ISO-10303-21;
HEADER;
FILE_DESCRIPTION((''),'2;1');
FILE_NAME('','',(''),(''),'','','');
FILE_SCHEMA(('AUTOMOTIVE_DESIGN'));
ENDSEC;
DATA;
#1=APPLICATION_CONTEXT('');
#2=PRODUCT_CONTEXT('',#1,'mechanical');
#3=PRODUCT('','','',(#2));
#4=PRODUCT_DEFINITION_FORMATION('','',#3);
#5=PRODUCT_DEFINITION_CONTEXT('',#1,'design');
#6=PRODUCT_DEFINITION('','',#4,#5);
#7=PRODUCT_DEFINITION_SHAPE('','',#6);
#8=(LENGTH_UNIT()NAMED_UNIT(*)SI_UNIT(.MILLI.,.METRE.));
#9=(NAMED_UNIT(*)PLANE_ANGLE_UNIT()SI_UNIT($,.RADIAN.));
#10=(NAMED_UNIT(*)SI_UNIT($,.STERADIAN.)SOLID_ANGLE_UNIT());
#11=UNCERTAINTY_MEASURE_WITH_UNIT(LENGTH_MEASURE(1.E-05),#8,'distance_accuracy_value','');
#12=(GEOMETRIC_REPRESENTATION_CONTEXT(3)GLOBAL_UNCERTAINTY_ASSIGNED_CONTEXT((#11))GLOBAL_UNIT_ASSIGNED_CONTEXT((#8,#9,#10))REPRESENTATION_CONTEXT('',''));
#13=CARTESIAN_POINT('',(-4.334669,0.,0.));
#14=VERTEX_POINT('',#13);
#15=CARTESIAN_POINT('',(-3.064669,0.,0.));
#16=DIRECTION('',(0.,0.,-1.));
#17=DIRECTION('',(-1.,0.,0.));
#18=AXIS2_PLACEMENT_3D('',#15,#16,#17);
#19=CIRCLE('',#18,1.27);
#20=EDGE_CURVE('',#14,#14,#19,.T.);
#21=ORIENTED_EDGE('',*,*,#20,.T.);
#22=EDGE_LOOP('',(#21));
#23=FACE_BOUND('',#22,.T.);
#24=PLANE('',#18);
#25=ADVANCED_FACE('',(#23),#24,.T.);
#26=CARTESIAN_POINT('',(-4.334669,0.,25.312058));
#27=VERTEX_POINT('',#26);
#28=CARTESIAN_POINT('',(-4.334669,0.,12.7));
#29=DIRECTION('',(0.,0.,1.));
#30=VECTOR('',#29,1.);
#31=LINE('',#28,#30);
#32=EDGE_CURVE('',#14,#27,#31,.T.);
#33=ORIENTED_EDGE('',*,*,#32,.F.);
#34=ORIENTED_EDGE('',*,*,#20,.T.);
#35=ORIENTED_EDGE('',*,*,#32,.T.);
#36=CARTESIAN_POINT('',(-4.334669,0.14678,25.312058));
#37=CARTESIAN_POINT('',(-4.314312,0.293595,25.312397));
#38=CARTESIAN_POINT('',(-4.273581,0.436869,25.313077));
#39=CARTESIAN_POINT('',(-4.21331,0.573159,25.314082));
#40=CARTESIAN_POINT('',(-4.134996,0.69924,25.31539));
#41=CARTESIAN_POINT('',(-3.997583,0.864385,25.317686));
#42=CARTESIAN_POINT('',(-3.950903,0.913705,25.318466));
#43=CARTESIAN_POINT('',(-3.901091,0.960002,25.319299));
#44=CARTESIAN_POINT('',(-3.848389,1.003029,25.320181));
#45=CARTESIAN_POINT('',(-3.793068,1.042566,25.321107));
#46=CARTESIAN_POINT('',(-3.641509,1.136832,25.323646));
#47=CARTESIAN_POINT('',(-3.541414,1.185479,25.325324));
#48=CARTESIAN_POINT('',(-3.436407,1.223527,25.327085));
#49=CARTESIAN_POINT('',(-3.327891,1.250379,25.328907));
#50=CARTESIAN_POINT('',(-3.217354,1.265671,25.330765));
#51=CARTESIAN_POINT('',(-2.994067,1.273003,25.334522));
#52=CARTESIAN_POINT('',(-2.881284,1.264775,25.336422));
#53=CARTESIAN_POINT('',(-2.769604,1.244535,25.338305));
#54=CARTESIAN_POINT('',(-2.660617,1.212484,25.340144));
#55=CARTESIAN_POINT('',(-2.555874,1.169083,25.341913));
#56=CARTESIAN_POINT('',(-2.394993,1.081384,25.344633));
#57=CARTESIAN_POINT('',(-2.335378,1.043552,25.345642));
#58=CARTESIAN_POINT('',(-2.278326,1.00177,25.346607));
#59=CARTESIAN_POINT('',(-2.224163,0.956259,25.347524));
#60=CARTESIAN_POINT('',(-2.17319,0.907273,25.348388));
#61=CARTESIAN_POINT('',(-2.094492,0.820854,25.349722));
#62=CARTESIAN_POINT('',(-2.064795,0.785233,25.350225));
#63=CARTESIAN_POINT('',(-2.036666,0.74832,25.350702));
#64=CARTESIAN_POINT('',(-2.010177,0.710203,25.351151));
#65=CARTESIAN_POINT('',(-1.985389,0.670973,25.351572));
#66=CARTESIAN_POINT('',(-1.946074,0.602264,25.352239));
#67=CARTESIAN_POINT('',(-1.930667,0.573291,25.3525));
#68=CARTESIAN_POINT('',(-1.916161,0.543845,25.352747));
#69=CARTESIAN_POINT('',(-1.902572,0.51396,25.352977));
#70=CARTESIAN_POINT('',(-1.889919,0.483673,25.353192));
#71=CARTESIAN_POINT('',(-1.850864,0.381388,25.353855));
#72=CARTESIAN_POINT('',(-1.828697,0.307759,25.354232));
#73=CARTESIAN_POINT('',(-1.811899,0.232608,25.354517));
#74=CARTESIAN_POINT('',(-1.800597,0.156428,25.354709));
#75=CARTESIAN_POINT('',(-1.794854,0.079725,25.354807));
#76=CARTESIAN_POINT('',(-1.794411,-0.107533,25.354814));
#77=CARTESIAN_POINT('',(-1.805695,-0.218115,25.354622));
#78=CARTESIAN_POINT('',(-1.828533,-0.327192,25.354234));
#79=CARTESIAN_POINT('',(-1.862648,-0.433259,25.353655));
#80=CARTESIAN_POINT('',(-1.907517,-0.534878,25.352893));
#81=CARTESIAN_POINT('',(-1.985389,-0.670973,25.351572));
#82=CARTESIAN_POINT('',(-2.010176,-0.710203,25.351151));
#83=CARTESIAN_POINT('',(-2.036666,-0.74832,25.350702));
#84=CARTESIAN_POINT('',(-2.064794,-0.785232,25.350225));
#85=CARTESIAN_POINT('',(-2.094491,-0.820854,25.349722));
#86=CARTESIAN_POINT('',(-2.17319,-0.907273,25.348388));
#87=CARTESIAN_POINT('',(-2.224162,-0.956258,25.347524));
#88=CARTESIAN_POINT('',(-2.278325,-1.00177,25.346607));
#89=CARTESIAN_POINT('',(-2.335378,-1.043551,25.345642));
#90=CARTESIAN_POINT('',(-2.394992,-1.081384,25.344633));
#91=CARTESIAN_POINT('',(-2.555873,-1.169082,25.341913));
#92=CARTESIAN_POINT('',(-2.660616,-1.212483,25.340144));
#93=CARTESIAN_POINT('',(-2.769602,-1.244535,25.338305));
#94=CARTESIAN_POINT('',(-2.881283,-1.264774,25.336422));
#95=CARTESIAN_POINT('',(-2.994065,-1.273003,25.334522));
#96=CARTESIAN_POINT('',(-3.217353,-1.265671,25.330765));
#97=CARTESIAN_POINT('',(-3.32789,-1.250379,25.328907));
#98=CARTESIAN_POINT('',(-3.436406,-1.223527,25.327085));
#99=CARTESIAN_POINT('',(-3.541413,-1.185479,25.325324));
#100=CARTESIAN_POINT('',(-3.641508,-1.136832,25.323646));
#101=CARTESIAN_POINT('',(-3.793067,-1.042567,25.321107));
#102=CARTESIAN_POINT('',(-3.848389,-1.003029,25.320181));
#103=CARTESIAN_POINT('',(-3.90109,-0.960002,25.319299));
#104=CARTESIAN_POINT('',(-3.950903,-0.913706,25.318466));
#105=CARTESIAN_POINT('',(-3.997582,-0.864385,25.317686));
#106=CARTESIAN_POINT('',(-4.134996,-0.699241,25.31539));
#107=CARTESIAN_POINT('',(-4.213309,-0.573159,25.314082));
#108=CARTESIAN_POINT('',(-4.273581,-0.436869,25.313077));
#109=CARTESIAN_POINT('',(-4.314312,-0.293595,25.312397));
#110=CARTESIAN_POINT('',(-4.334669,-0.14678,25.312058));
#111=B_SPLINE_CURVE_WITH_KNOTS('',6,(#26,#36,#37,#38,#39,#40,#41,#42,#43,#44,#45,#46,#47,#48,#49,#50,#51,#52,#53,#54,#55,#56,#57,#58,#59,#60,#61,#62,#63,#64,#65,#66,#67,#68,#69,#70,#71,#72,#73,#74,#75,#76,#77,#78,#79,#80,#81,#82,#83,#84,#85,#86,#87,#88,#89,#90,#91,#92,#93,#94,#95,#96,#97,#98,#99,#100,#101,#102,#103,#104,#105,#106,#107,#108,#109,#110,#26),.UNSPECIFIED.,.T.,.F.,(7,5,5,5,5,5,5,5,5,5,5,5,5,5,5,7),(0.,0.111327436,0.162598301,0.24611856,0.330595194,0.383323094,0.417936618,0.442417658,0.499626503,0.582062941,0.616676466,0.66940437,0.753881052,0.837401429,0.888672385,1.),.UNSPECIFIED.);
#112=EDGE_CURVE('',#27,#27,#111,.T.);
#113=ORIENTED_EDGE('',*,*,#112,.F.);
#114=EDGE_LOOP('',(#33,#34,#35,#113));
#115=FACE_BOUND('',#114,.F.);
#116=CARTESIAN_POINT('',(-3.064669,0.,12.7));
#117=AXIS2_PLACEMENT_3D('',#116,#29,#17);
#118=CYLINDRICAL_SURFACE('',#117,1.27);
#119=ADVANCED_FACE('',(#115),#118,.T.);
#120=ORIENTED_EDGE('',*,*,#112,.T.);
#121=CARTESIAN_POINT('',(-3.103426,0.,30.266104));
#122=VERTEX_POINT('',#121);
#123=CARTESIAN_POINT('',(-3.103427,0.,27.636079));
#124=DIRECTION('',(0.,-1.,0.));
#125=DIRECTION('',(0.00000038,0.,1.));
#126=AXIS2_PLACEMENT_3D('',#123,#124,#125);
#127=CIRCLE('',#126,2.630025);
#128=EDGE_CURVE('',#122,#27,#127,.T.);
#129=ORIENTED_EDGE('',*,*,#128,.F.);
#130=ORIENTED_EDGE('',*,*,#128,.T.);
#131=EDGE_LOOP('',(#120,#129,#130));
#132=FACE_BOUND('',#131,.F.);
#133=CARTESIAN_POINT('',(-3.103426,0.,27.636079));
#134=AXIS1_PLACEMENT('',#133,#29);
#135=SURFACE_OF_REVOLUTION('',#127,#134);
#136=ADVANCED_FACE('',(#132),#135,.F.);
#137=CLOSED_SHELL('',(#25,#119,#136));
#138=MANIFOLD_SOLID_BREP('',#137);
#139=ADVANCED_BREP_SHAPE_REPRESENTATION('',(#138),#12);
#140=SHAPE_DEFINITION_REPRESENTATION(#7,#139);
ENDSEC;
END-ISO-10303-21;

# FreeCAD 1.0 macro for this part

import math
import FreeCAD as App
import Part
import Sketcher
from FreeCAD import Vector
Q = App.Units.Quantity


def add_polygon(sketch, points):
    """Adds a closed chain of lines whose ends are joined by coincident constraints."""
    first, n = sketch.GeometryCount, len(points)
    for a, b in zip(points, points[1:] + points[:1]):
        sketch.addGeometry(Part.LineSegment(App.Vector(*a, 0), App.Vector(*b, 0)), False)
    for i in range(n):
        sketch.addConstraint(Sketcher.Constraint("Coincident", first + i, 2, first + (i + 1) % n, 1))

doc = App.newDocument("Part")
body = doc.addObject("PartDesign::Body", "Body")

# Sketch on XZ plane
sketch1 = body.newObject("Sketcher::SketchObject", "Sketch")
sketch1.AttachmentSupport = (doc.getObject("XZ_Plane"), [""])
sketch1.MapMode = "FlatFace"
add_polygon(sketch1, [(-4.3, 25.4), (-4.3, 0), (-3.1, 0), (-3.1, 25.4)])  # lines 0-3
sketch1.addGeometry(Part.LineSegment(Vector(-3.1, 25.4, 0), Vector(-3.1, 0, 0)), True)  # axis
sketch1.addConstraint([
    Sketcher.Constraint("Vertical", 0),
    Sketcher.Constraint("Horizontal", 1),
    Sketcher.Constraint("Vertical", 2),
    Sketcher.Constraint("Horizontal", 3),
    Sketcher.Constraint("Vertical", 4),
    Sketcher.Constraint("Coincident", 4, 1, 2, 2),
    Sketcher.Constraint("PointOnObject", 0, 2, -1),
    Sketcher.Constraint("PointOnObject", 4, 2, -1),
    Sketcher.Constraint("DistanceY", 0, 2, 0, 1, Q("1 in")),
    Sketcher.Constraint("DistanceX", 1, 1, 1, 2, Q("0.05 in")),
    Sketcher.Constraint("DistanceX", 0, 2, -1, 1, 4.334669),
])
revolution = body.newObject("PartDesign::Revolution", "Revolution")
revolution.Profile = sketch1
revolution.ReferenceAxis = (sketch1, ["Axis0"])
revolution.Angle = 360

# Sketch on XZ plane
sketch2 = body.newObject("Sketcher::SketchObject", "Sketch001")
sketch2.AttachmentSupport = (doc.getObject("XZ_Plane"), [""])
sketch2.MapMode = "FlatFace"
sketch2.addGeometry([
    Part.LineSegment(Vector(-3.1, 25, 0), Vector(-3.1, 30.3, 0)),
    Part.ArcOfCircle(Part.Circle(Vector(-3.1, 27.6, 0), Vector(0, 0, 1), 2.6), math.radians(90), math.radians(270)),
], False)
sketch2.addGeometry(Part.LineSegment(Vector(-3.1, 25, 0), Vector(-3.1, 30.3, 0)), True)  # axis
sketch2.addConstraint([
    Sketcher.Constraint("Coincident", 0, 1, 1, 2),
    Sketcher.Constraint("Coincident", 1, 1, 0, 2),
    Sketcher.Constraint("Vertical", 0),
    Sketcher.Constraint("Vertical", 2),
    Sketcher.Constraint("Coincident", 2, 1, 0, 1),
    Sketcher.Constraint("Vertical", 1, 3, 0, 1),
    Sketcher.Constraint("Equal", 0, 2),
    Sketcher.Constraint("Radius", 1, 2.630025),
    Sketcher.Constraint("DistanceY", -1, 1, 1, 3, 27.636079),
    Sketcher.Constraint("DistanceX", 1, 3, -1, 1, 3.103427),
])
revolution2 = body.newObject("PartDesign::Revolution", "Revolution001")
revolution2.Profile = sketch2
revolution2.ReferenceAxis = (sketch2, ["Axis0"])
revolution2.Angle = 360

doc.recompute()
